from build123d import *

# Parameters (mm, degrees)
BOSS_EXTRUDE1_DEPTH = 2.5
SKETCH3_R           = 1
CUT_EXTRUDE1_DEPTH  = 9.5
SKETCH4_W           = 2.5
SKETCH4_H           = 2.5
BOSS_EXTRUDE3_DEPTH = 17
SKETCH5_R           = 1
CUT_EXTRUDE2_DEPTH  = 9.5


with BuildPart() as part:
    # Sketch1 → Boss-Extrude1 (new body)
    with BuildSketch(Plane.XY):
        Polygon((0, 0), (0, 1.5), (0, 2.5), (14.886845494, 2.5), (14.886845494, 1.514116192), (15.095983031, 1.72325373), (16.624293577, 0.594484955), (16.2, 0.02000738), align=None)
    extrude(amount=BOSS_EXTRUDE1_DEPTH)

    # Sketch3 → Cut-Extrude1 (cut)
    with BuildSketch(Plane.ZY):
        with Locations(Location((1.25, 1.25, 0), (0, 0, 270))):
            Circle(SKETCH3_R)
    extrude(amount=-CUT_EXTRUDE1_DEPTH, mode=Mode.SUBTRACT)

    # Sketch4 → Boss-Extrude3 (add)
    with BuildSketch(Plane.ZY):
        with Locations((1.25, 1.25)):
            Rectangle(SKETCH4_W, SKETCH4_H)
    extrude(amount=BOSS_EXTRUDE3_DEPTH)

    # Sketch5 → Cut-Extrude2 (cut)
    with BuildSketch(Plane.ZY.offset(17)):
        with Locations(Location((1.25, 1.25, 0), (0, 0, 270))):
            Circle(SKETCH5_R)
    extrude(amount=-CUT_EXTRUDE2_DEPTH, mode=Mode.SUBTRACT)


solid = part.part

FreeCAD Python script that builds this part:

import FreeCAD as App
import Part
import Sketcher

V = App.Vector
Q = App.Units.Quantity

doc = App.newDocument("Part")
body = doc.addObject("PartDesign::Body", "Body")

# Sketch on XY plane
sketch1 = doc.addObject("Sketcher::SketchObject", "Sketch")
body.addObject(sketch1)
sketch1.AttachmentSupport = (doc.XY_Plane, [""])
sketch1.MapMode = "FlatFace"
sketch1.addGeometry([
    Part.LineSegment(V(0, 2.5, 0), V(0, 0, 0)),  # 0
    Part.LineSegment(V(0, 0, 0), V(16.2, 0.02, 0)),  # 1
    Part.LineSegment(V(16.2, 0.02, 0), V(16.62, 0.59, 0)),  # 2
    Part.LineSegment(V(16.62, 0.59, 0), V(15.1, 1.72, 0)),  # 3
    Part.LineSegment(V(15.1, 1.72, 0), V(14.89, 1.51, 0)),  # 4
    Part.LineSegment(V(14.89, 1.51, 0), V(14.89, 2.5, 0)),  # 5
    Part.LineSegment(V(14.89, 2.5, 0), V(0, 2.5, 0)),  # 6
], False)
sketch1.addConstraint([
    Sketcher.Constraint("Coincident", 0, 2, 1, 1),
    Sketcher.Constraint("Coincident", 1, 2, 2, 1),
    Sketcher.Constraint("Coincident", 2, 2, 3, 1),
    Sketcher.Constraint("Coincident", 3, 2, 4, 1),
    Sketcher.Constraint("Coincident", 4, 2, 5, 1),
    Sketcher.Constraint("Coincident", 5, 2, 6, 1),
    Sketcher.Constraint("Coincident", 6, 2, 0, 1),
    Sketcher.Constraint("Vertical", 0),
    Sketcher.Constraint("Vertical", 5),
    Sketcher.Constraint("Horizontal", 6),
    Sketcher.Constraint("Coincident", 0, 2, -1, 1),
    Sketcher.Constraint("Perpendicular", 2, 3),
    Sketcher.Constraint("Angle", 4, Q("-135 deg")),
    Sketcher.Constraint("DistanceY", 0, 2, 0, 1, Q("2.5 mm")),
    Sketcher.Constraint("DistanceX", -1, 1, 1, 2, Q("16.2 mm")),
    Sketcher.Constraint("Distance", 3, Q("1.899961 mm")),
    Sketcher.Constraint("DistanceX", 6, 2, 6, 1, Q("14.886845 mm")),
    Sketcher.Constraint("DistanceY", 5, 1, 5, 2, Q("0.985884 mm")),
    Sketcher.Constraint("DistanceX", 3, 2, 2, 2, Q("1.528311 mm")),
    Sketcher.Constraint("DistanceX", 4, 2, 2, 2, Q("1.737448 mm")),
])
pad1 = doc.addObject("PartDesign::Pad", "Pad")
body.addObject(pad1)
pad1.Profile = sketch1
pad1.Length = 2.5

# Sketch on YZ plane
sketch2 = doc.addObject("Sketcher::SketchObject", "Sketch001")
body.addObject(sketch2)
sketch2.AttachmentSupport = (doc.YZ_Plane, [""])
sketch2.MapMode = "FlatFace"
sketch2.addGeometry(Part.Circle(V(1.2, 1.2, 0), V(0, 0, 1), 1), False)
sketch2.addConstraint([
    Sketcher.Constraint("Diameter", 0, Q("2 mm")),
    Sketcher.Constraint("DistanceX", -1, 1, 0, 3, Q("1.25 mm")),
    Sketcher.Constraint("DistanceY", -1, 1, 0, 3, Q("1.25 mm")),
])
pocket1 = doc.addObject("PartDesign::Pocket", "Pocket")
body.addObject(pocket1)
pocket1.Profile = sketch2
pocket1.Length = 9.5
pocket1.Reversed = True

# Sketch on YZ plane
sketch3 = doc.addObject("Sketcher::SketchObject", "Sketch002")
body.addObject(sketch3)
sketch3.AttachmentSupport = (doc.YZ_Plane, [""])
sketch3.MapMode = "FlatFace"
sketch3.addGeometry([
    Part.LineSegment(V(2.5, 0, 0), V(0, 0, 0)),
    Part.LineSegment(V(0, 0, 0), V(0, 2.5, 0)),
    Part.LineSegment(V(0, 2.5, 0), V(2.5, 2.5, 0)),
    Part.LineSegment(V(2.5, 2.5, 0), V(2.5, 0, 0)),
], False)
sketch3.addConstraint([
    Sketcher.Constraint("Coincident", 0, 2, 1, 1),
    Sketcher.Constraint("Coincident", 1, 2, 2, 1),
    Sketcher.Constraint("Coincident", 2, 2, 3, 1),
    Sketcher.Constraint("Coincident", 3, 2, 0, 1),
    Sketcher.Constraint("Horizontal", 0),
    Sketcher.Constraint("Vertical", 1),
    Sketcher.Constraint("Horizontal", 2),
    Sketcher.Constraint("Vertical", 3),
    Sketcher.Constraint("Coincident", 0, 2, -1, 1),
    Sketcher.Constraint("Equal", 2, 1),
    Sketcher.Constraint("DistanceX", 0, 2, 0, 1, Q("2.5 mm")),
])
pad2 = doc.addObject("PartDesign::Pad", "Pad001")
body.addObject(pad2)
pad2.Profile = sketch3
pad2.Length = 17
pad2.Reversed = True

# Sketch on YZ plane
sketch4 = doc.addObject("Sketcher::SketchObject", "Sketch003")
body.addObject(sketch4)
sketch4.AttachmentSupport = (doc.YZ_Plane, [""])
sketch4.MapMode = "FlatFace"
sketch4.AttachmentOffset = App.Placement(V(0, 0, -17), App.Rotation())
sketch4.addGeometry(Part.Circle(V(1.2, 1.2, 0), V(0, 0, 1), 1), False)
sketch4.addConstraint([
    Sketcher.Constraint("Diameter", 0, Q("2 mm")),
    Sketcher.Constraint("DistanceX", -1, 1, 0, 3, Q("1.25 mm")),
    Sketcher.Constraint("DistanceY", -1, 1, 0, 3, Q("1.25 mm")),
])
pocket2 = doc.addObject("PartDesign::Pocket", "Pocket001")
body.addObject(pocket2)
pocket2.Profile = sketch4
pocket2.Length = 9.5
pocket2.Reversed = True

doc.recompute()
